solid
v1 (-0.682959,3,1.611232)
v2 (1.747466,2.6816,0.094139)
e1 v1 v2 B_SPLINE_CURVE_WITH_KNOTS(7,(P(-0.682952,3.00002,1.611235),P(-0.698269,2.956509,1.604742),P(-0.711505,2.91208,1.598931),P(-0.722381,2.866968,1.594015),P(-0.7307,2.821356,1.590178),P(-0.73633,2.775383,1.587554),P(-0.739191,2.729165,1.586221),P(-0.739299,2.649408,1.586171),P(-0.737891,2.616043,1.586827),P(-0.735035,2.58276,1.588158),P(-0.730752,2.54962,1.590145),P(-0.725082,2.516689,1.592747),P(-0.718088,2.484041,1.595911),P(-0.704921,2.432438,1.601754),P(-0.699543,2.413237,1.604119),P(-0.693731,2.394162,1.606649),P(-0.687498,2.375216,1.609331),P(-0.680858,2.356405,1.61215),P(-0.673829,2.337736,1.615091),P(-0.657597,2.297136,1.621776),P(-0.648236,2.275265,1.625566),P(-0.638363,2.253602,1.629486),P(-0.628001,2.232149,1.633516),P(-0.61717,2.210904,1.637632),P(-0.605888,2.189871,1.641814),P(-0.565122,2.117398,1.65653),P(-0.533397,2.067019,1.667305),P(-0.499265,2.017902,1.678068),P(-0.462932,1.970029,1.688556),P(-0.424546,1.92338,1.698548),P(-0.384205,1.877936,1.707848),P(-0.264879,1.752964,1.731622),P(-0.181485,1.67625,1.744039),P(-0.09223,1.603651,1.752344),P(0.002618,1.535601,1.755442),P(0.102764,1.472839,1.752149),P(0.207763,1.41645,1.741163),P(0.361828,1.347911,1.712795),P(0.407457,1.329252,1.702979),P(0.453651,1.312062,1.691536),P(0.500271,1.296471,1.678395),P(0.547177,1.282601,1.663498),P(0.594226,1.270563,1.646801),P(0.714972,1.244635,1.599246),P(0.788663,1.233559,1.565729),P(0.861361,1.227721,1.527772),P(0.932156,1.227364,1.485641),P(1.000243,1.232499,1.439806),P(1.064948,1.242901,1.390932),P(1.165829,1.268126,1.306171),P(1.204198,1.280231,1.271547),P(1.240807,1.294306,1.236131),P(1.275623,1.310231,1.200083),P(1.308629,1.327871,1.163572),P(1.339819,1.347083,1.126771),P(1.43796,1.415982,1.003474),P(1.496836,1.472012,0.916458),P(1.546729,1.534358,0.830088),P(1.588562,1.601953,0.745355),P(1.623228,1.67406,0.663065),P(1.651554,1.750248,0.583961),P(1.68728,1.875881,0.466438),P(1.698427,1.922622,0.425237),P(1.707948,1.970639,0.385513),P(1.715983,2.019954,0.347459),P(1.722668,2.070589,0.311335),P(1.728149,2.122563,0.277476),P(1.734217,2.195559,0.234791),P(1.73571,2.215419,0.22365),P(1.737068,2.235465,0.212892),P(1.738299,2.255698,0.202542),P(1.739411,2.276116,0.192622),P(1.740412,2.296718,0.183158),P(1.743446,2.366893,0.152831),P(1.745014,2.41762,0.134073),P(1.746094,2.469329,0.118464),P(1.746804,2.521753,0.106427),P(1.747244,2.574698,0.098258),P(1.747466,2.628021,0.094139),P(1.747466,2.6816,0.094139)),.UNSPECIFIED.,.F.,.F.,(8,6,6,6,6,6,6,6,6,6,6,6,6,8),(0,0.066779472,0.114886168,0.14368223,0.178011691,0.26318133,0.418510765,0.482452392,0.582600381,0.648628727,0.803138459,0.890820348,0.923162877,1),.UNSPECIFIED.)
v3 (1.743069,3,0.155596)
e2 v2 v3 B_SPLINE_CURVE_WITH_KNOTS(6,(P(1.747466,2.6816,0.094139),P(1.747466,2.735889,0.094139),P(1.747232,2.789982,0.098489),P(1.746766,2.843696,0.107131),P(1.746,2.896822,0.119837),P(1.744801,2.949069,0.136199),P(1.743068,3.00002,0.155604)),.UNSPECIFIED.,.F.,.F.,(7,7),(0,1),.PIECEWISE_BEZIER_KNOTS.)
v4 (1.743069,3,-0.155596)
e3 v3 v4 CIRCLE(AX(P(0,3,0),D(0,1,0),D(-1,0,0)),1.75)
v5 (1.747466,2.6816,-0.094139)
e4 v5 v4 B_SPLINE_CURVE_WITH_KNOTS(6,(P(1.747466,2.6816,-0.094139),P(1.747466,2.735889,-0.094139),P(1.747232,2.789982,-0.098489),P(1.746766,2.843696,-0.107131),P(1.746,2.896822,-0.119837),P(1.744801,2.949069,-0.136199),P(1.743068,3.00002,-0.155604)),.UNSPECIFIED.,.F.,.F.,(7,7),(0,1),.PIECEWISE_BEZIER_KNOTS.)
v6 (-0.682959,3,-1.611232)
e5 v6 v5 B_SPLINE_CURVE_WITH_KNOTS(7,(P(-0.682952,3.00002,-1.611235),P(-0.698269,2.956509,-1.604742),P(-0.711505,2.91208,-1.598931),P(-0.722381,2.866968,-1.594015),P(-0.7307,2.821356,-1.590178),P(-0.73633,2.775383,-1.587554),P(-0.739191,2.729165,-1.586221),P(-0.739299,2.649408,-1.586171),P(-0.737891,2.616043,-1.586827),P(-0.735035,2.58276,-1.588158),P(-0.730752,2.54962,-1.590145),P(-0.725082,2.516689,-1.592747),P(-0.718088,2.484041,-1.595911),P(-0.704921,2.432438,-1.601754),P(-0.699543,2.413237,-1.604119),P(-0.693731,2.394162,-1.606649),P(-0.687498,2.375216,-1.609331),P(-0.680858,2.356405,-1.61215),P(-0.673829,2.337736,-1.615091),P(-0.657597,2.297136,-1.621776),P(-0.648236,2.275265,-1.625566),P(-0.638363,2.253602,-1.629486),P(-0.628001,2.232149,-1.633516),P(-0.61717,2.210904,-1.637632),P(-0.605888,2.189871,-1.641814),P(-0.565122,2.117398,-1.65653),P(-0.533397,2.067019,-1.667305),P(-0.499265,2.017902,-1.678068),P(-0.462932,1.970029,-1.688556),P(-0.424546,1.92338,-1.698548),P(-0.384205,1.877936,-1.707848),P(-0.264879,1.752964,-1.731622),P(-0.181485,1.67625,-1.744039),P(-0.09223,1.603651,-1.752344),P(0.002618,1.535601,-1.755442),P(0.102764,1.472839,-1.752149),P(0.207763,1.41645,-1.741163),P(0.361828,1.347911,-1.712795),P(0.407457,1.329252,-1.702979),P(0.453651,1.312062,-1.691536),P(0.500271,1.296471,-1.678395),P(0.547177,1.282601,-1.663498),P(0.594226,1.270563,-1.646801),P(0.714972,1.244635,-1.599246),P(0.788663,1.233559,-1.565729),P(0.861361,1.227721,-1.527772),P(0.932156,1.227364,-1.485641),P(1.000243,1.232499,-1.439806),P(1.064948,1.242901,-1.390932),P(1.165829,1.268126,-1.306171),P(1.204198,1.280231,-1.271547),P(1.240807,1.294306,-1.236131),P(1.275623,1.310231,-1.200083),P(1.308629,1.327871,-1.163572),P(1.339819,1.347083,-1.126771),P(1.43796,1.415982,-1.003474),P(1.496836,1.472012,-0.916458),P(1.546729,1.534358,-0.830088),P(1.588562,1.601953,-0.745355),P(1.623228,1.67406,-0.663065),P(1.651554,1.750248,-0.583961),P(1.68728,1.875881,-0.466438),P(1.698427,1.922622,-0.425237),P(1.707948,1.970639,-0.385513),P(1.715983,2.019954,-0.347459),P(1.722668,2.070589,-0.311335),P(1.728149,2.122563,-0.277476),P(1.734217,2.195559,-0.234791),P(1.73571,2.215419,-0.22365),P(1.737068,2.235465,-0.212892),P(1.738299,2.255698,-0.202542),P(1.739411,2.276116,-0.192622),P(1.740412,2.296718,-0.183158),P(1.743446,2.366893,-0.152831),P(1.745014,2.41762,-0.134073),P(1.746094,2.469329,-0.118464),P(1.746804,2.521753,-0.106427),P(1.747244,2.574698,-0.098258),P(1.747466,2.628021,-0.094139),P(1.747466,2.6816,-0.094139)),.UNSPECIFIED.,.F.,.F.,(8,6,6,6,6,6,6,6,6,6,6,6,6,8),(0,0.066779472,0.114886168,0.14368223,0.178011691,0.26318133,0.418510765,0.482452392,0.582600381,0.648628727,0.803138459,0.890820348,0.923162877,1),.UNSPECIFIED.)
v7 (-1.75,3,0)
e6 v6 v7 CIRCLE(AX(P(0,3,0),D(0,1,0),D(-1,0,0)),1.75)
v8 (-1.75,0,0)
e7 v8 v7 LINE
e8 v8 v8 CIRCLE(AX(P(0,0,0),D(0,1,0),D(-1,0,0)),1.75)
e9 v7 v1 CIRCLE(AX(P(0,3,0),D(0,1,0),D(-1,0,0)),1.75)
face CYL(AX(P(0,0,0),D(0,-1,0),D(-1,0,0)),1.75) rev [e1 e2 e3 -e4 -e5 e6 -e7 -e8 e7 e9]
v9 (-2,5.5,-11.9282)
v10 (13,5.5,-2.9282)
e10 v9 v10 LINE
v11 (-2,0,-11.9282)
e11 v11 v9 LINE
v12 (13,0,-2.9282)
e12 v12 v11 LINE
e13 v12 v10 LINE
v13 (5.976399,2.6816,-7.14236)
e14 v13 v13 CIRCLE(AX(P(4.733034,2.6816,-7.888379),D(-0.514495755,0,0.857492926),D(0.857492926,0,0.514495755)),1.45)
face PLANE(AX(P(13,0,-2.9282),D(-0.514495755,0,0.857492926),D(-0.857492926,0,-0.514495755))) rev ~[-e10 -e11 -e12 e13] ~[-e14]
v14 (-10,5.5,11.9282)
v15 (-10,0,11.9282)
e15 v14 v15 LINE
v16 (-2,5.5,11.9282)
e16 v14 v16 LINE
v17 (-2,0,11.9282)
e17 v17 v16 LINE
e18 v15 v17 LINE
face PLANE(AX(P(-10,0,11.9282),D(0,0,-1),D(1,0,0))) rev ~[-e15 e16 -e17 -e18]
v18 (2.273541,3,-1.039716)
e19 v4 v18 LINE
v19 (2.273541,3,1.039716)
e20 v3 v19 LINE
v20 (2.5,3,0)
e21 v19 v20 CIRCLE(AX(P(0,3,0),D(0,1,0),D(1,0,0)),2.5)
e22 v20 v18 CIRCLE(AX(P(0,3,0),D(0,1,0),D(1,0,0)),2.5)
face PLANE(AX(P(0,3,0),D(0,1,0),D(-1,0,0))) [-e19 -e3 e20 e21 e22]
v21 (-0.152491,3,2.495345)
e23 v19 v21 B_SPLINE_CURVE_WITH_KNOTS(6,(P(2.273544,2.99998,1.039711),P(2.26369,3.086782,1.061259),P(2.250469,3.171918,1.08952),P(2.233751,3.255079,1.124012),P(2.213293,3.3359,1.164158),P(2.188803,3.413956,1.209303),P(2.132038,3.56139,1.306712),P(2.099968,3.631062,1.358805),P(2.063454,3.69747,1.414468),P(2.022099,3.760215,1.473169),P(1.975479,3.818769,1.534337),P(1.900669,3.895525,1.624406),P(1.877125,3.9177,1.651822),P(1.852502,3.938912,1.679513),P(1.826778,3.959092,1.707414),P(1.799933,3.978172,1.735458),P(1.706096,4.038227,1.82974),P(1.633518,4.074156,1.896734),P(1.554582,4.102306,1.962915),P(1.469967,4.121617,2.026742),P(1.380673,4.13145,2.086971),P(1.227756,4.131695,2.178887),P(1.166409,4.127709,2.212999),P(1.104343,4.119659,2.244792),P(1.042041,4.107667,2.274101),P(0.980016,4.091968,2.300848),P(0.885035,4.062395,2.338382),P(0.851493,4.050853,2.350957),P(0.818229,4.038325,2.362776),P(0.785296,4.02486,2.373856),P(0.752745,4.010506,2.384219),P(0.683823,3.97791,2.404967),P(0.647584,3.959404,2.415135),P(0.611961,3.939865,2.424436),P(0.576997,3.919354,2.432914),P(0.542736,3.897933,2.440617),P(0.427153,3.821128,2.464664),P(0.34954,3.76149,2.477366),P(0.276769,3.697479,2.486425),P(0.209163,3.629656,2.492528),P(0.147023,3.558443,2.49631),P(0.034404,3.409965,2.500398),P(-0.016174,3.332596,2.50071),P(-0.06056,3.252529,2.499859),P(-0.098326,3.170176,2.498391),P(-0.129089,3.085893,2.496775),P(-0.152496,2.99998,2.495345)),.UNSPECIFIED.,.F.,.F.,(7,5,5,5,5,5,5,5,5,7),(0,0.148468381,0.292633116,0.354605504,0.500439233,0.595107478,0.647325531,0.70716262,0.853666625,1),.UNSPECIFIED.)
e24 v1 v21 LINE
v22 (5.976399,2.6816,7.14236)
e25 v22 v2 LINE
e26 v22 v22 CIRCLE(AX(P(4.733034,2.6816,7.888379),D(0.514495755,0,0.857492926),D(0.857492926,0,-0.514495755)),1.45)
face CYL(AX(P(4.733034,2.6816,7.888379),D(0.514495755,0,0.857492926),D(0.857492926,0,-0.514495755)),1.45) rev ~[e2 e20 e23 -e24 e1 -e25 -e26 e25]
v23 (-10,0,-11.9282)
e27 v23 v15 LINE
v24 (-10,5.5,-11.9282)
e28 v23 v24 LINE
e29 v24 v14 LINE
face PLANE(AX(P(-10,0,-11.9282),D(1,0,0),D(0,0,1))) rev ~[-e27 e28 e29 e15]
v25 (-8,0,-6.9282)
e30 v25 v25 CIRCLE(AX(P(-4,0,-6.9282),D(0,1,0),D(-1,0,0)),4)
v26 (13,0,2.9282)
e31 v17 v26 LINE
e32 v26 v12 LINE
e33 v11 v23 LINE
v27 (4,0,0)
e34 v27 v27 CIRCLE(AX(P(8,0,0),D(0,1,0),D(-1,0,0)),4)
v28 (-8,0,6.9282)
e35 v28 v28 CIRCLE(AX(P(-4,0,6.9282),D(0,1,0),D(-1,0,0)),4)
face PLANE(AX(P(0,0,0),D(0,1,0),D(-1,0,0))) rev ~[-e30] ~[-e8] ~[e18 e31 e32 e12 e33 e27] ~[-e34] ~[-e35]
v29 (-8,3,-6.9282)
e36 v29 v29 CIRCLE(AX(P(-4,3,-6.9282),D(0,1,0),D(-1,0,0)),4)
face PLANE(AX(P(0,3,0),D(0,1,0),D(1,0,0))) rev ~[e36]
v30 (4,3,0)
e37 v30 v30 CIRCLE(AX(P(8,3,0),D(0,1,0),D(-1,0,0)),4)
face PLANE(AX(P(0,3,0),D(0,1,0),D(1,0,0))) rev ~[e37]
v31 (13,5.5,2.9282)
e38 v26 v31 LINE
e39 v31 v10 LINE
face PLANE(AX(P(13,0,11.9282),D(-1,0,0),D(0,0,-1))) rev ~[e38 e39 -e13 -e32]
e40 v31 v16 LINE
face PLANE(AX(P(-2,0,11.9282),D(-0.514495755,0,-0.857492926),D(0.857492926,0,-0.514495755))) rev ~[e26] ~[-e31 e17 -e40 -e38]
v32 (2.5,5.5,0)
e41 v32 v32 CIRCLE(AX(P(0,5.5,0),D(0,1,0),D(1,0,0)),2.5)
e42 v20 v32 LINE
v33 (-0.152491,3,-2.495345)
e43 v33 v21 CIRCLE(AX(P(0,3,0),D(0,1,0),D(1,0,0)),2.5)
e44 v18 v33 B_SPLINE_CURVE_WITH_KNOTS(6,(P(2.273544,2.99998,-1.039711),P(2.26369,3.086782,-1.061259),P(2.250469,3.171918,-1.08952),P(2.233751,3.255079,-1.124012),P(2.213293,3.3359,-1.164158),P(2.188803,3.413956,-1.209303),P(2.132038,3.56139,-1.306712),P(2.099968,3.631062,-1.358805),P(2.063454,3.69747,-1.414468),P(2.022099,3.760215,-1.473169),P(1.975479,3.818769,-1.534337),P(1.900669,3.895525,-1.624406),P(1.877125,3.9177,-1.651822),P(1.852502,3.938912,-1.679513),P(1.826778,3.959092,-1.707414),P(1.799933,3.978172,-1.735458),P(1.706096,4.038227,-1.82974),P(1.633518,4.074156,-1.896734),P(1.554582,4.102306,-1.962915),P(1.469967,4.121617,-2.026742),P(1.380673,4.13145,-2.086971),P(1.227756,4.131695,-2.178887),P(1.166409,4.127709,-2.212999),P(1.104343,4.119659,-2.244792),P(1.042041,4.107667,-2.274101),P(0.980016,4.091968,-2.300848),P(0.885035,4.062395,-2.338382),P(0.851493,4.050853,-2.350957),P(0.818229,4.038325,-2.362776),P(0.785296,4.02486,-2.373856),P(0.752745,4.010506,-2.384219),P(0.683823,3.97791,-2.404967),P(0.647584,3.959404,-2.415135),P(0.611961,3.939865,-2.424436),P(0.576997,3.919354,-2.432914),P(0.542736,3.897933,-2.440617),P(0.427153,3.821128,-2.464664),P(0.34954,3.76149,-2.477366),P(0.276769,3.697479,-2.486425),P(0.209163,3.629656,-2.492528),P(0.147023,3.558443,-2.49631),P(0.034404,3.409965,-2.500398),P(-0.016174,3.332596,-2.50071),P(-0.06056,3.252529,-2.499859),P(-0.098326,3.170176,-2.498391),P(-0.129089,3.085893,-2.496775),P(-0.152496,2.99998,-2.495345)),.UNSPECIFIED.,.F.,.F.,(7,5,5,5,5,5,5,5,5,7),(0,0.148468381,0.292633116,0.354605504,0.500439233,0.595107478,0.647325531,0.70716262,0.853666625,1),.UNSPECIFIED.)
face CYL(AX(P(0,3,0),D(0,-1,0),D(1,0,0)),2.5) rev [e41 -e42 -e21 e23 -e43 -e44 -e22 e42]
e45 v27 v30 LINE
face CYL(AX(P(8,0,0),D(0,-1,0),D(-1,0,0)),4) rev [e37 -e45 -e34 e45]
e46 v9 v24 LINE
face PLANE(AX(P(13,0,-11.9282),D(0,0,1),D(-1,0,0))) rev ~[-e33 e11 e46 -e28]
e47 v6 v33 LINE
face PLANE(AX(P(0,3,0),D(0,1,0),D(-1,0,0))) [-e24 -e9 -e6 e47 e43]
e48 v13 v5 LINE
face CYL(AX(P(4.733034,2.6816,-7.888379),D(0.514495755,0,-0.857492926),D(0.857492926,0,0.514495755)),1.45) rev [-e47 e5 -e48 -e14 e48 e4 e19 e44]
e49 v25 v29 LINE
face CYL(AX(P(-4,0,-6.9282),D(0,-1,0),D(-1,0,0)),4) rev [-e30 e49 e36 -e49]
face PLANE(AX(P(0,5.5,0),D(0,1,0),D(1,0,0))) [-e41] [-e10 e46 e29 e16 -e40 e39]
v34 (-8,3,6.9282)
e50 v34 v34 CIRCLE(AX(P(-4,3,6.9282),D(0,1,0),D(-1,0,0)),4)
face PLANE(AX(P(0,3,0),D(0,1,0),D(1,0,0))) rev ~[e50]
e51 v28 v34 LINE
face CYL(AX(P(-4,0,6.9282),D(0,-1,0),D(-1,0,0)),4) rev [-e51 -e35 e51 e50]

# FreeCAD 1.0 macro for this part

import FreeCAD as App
import Part
import Sketcher
from FreeCAD import Vector


def add_polygon(sketch, points):
    """Adds a closed chain of lines whose ends are joined by coincident constraints."""
    first, n = sketch.GeometryCount, len(points)
    for a, b in zip(points, points[1:] + points[:1]):
        sketch.addGeometry(Part.LineSegment(App.Vector(*a, 0), App.Vector(*b, 0)), False)
    for i in range(n):
        sketch.addConstraint(Sketcher.Constraint("Coincident", first + i, 2, first + (i + 1) % n, 1))

doc = App.newDocument("Part")
params = doc.addObject("Spreadsheet::Sheet", "Params")
for row, (alias, value) in enumerate([
    ("sketch1_diameter", "8 mm"),
    ("sketch1_diameter2", "3.5 mm"),
    ("sketch1_width", "23 mm"),
    ("pad1_length", "3 mm"),
    ("sketch2_diameter", "5 mm"),
    ("sketch2_width", "23 mm"),
    ("pad2_length", "2.5 mm"),
    ("sketch3_width", "15 mm"),
    ("sketch3_height", "9 mm"),
    ("sketch4_diameter", "2.9 mm"),
    ("pocket2_length", "8.2196 mm"),
], start=1):
    params.set(f"A{row}", alias)
    params.set(f"B{row}", "=" + value)
    params.setAlias(f"B{row}", alias)

body = doc.addObject("PartDesign::Body", "Body")

sketch1 = doc.addObject("Sketcher::SketchObject", "Sketch")
body.addObject(sketch1)
sketch1.AttachmentSupport = (doc.XZ_Plane, [""])
sketch1.MapMode = "FlatFace"
add_polygon(sketch1, [(13, 11.9), (13, -11.9), (-10, -11.9), (-10, 11.9)])
sketch1.addGeometry(Part.Circle(Vector(-4, -6.9, 0), Vector(0, 0, 1), 4), False)
sketch1.addGeometry(Part.Circle(Vector(8, 0, 0), Vector(0, 0, 1), 4), False)
sketch1.addGeometry(Part.Circle(Vector(0, 0, 0), Vector(0, 0, 1), 1.8), False)
sketch1.addGeometry(Part.Circle(Vector(-4, 6.9, 0), Vector(0, 0, 1), 4), False)
sketch1.addConstraint([
    Sketcher.Constraint("Vertical", 0),
    Sketcher.Constraint("Horizontal", 1),
    Sketcher.Constraint("Vertical", 2),
    Sketcher.Constraint("Horizontal", 3),
    Sketcher.Constraint("Coincident", 6, 3, -1, 1),
    Sketcher.Constraint("Equal", 4, 5),
    Sketcher.Constraint("Equal", 5, 7),
    Sketcher.Constraint("Symmetric", 4, 3, 7, 3, -1),
    Sketcher.Constraint("PointOnObject", 5, 3, -1),
    Sketcher.Constraint("Diameter", 4, 8.0),
    Sketcher.Constraint("Diameter", 6, 3.5),
    Sketcher.Constraint("DistanceX", -1, 1, 5, 3, 8.0),
    Sketcher.Constraint("DistanceX", 5, 3, 0, 2, 5.0),
    Sketcher.Constraint("DistanceY", 0, 2, 4, 3, 5.0),
    Sketcher.Constraint("DistanceX", 1, 2, 4, 3, 6.0),
    Sketcher.Constraint("DistanceY", 7, 3, 2, 2, 5.0),
    Sketcher.Constraint("DistanceX", 1, 2, 1, 1, 23.0),
    Sketcher.Constraint("DistanceY", 0, 2, 0, 1, 23.8564),
])
sketch1.setExpression("Constraints[13]", "Params.sketch1_diameter")
sketch1.setExpression("Constraints[14]", "Params.sketch1_diameter2")
sketch1.setExpression("Constraints[20]", "Params.sketch1_width")
pad1 = doc.addObject("PartDesign::Pad", "Pad")
body.addObject(pad1)
pad1.Profile = sketch1
pad1.setExpression("Length", "Params.pad1_length")
pad1.Reversed = True

sketch2 = doc.addObject("Sketcher::SketchObject", "Sketch001")
body.addObject(sketch2)
sketch2.AttachmentSupport = (doc.XZ_Plane, [""])
sketch2.MapMode = "FlatFace"
sketch2.AttachmentOffset = App.Placement(Vector(0, 0, -3), App.Rotation())
add_polygon(sketch2, [(13, 11.9), (13, -11.9), (-10, -11.9), (-10, 11.9)])
sketch2.addGeometry(Part.Circle(Vector(0, 0, 0), Vector(0, 0, 1), 2.5), False)
sketch2.addConstraint([
    Sketcher.Constraint("Vertical", 0),
    Sketcher.Constraint("Horizontal", 1),
    Sketcher.Constraint("Vertical", 2),
    Sketcher.Constraint("Horizontal", 3),
    Sketcher.Constraint("Coincident", 4, 3, -1, 1),
    Sketcher.Constraint("Diameter", 4, 5.0),
    Sketcher.Constraint("DistanceX", 1, 2, 1, 1, 23.0),
    Sketcher.Constraint("DistanceX", -1, 1, 0, 2, 13.0),
    Sketcher.Constraint("DistanceY", 0, 2, 0, 1, 23.8564),
    Sketcher.Constraint("DistanceY", 0, 2, -1, 1, 11.9282),
])
sketch2.setExpression("Constraints[9]", "Params.sketch2_diameter")
sketch2.setExpression("Constraints[10]", "Params.sketch2_width")
pad2 = doc.addObject("PartDesign::Pad", "Pad001")
body.addObject(pad2)
pad2.Profile = sketch2
pad2.setExpression("Length", "Params.pad2_length")
pad2.Reversed = True

sketch3 = doc.addObject("Sketcher::SketchObject", "Sketch002")
body.addObject(sketch3)
sketch3.AttachmentSupport = (doc.XZ_Plane, [""])
sketch3.MapMode = "FlatFace"
add_polygon(sketch3, [(-2, 12), (13, 3), (13, 12)])
add_polygon(sketch3, [(-2, -12), (13, -12), (13, -3)])
sketch3.addConstraint([
    Sketcher.Constraint("Vertical", 1),
    Sketcher.Constraint("Horizontal", 2),
    Sketcher.Constraint("Horizontal", 3),
    Sketcher.Constraint("Vertical", 4),
    Sketcher.Constraint("Symmetric", 1, 2, 3, 2, -1),
    Sketcher.Constraint("Vertical", 2, 2, 5, 2),
    Sketcher.Constraint("Equal", 1, 4),
    Sketcher.Constraint("DistanceX", 2, 2, 2, 1, 15.0),
    Sketcher.Constraint("DistanceY", 1, 1, 1, 2, 9.0),
    Sketcher.Constraint("DistanceX", -1, 1, 0, 2, 13.0),
    Sketcher.Constraint("DistanceY", -1, 1, 0, 2, 2.9282),
])
sketch3.setExpression("Constraints[13]", "Params.sketch3_width")
sketch3.setExpression("Constraints[14]", "Params.sketch3_height")
pocket1 = doc.addObject("PartDesign::Pocket", "Pocket")
body.addObject(pocket1)
pocket1.Profile = sketch3
pocket1.Type = "ThroughAll"

sketch4 = doc.addObject("Sketcher::SketchObject", "Sketch003")
body.addObject(sketch4)
sketch4.Placement = App.Placement(Vector(-2, 0, 11.9282), App.Rotation(Vector(0.857492926, 0, -0.514495755), Vector(0, 1, 0), Vector(0.514495755, 0, 0.857492926), "ZXY"))
sketch4.addGeometry(Part.Circle(Vector(7.9, 2.7, 0), Vector(0, 0, 1), 1.4), False)
sketch4.addConstraint([
    Sketcher.Constraint("Diameter", 0, 2.9),
    Sketcher.Constraint("DistanceX", -1, 1, 0, 3, 7.852),
    Sketcher.Constraint("DistanceY", -1, 1, 0, 3, 2.6816),
])
sketch4.setExpression("Constraints[0]", "Params.sketch4_diameter")
pocket2 = doc.addObject("PartDesign::Pocket", "Pocket001")
body.addObject(pocket2)
pocket2.Profile = sketch4
pocket2.setExpression("Length", "Params.pocket2_length")
doc.recompute()

mirrored = doc.addObject("PartDesign::Mirrored", "Mirrored")
body.addObject(mirrored)
mirrored.Originals = [pocket2]
mirrored.MirrorPlane = (doc.XY_Plane, [""])
body.Tip = mirrored

doc.recompute()
